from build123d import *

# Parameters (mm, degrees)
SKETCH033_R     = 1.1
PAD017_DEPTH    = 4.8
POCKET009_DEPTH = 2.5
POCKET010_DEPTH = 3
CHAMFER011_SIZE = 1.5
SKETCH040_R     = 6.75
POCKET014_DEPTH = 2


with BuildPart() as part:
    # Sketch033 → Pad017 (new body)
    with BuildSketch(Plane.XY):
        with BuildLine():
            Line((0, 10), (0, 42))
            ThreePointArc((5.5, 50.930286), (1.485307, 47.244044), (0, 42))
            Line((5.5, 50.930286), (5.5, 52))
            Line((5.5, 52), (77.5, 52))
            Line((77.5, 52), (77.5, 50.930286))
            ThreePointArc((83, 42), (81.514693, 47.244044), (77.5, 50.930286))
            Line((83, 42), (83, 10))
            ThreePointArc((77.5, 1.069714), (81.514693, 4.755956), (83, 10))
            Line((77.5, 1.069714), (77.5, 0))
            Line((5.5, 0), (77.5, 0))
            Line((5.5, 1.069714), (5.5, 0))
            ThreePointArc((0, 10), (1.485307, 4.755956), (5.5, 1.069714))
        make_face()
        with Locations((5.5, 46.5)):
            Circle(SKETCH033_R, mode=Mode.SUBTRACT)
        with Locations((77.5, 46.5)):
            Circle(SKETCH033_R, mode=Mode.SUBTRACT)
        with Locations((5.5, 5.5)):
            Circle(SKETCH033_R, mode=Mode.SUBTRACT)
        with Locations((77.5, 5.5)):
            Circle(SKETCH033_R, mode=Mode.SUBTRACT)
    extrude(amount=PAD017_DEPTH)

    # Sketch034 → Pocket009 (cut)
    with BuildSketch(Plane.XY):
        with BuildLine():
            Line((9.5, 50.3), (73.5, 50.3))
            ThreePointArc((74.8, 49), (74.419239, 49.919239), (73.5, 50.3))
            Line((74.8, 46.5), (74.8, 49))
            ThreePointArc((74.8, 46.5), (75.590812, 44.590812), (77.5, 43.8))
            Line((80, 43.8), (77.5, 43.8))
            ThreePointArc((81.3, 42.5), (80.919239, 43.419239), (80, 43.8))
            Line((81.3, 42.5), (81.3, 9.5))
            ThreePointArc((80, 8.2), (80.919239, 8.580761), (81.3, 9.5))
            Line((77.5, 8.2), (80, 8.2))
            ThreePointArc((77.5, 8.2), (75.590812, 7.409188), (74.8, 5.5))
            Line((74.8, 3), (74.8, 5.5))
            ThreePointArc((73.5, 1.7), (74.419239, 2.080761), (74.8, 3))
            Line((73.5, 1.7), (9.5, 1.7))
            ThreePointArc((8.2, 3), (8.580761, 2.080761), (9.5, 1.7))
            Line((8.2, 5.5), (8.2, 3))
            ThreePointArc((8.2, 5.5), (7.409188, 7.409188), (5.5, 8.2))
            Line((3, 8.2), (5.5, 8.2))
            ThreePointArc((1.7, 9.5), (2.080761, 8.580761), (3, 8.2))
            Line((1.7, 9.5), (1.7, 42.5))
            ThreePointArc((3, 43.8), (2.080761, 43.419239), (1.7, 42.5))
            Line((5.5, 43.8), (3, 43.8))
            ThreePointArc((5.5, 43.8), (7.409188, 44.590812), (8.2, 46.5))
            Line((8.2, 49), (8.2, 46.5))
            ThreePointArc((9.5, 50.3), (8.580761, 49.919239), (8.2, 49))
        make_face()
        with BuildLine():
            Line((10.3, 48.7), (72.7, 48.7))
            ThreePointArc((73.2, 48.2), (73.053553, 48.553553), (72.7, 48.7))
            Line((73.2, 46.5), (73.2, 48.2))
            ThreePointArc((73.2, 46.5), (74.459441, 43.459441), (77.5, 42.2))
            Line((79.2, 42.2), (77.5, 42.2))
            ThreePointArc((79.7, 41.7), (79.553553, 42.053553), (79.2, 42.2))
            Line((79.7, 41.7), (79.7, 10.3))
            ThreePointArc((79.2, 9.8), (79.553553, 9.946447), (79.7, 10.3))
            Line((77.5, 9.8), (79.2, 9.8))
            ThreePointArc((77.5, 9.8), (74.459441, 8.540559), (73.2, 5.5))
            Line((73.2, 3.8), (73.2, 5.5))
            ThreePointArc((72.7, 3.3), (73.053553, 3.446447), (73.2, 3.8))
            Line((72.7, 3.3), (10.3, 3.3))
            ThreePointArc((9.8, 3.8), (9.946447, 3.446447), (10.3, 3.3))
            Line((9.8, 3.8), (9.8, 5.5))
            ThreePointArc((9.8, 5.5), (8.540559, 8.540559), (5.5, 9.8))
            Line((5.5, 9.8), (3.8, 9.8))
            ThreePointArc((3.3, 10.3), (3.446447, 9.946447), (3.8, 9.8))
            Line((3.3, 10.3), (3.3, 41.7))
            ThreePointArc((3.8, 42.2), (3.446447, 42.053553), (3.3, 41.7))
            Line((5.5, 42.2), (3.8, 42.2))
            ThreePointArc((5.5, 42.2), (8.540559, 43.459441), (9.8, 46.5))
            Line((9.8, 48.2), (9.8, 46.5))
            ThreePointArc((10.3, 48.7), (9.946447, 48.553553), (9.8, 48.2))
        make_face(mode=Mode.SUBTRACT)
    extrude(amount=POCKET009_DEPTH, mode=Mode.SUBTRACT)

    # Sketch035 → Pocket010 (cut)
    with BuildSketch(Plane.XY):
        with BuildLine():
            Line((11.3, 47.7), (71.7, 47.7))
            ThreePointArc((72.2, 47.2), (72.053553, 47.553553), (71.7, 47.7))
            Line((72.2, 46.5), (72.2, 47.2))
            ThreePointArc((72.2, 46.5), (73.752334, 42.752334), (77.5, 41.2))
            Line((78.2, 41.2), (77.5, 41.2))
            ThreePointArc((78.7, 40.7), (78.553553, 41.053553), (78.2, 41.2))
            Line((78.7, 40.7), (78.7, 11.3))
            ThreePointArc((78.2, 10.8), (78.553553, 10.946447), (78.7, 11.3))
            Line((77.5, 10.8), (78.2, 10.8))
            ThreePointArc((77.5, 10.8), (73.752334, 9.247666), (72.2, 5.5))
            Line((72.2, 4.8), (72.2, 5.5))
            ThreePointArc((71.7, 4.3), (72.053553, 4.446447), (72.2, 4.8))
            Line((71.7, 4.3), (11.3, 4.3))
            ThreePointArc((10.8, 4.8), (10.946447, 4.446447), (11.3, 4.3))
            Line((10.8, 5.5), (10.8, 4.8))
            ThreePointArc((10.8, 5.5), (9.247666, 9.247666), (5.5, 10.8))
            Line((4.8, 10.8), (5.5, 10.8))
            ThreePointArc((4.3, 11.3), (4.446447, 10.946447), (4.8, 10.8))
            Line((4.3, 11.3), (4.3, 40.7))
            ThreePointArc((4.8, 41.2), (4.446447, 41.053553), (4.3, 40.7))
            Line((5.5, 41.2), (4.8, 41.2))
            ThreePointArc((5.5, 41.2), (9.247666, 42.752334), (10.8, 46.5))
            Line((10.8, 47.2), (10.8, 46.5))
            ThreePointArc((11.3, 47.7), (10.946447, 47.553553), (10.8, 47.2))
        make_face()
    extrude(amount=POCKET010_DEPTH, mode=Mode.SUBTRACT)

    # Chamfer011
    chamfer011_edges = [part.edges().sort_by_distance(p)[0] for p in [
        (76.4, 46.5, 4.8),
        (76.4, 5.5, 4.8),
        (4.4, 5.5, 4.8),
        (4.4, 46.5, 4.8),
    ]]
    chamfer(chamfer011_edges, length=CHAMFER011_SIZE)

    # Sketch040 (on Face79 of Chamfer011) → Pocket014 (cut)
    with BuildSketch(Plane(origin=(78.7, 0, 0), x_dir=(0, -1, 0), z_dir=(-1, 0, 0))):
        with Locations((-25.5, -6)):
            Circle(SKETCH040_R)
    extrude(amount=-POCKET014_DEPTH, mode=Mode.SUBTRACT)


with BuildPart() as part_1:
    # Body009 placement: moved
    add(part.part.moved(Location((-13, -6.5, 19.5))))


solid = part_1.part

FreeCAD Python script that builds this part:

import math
import FreeCAD as App
import Part
import Sketcher
from FreeCAD import Vector


def edges_at(feature, points):
    """Names of the edges that pass closest to the given points."""
    edges = feature.Shape.Edges
    near = lambda p: min(range(len(edges)), key=lambda i: edges[i].distToShape(Part.Vertex(*p))[0])
    return sorted({f"Edge{near(p) + 1}" for p in points})

doc = App.newDocument("Part")
body = doc.addObject("PartDesign::Body", "Body")

# Sketch on XY plane
sketch1 = body.newObject("Sketcher::SketchObject", "Sketch")
sketch1.AttachmentSupport = (doc.getObject("XY_Plane"), [""])
sketch1.MapMode = "FlatFace"
sketch1.addGeometry([
    Part.LineSegment(Vector(0, 42, 0), Vector(0, 10, 0)),  # 0
    Part.ArcOfCircle(Part.Circle(Vector(10.000003, 10.000001, 0), Vector(0, 0, 1), 10.000003), math.radians(-179.999992), math.radians(-116.743694)),  # 1
    Part.LineSegment(Vector(5.5, 1.069714, 0), Vector(5.5, 0, 0)),  # 2
    Part.LineSegment(Vector(5.5, 0, 0), Vector(77.5, 0, 0)),  # 3
    Part.LineSegment(Vector(77.5, 0, 0), Vector(77.5, 1.069714, 0)),  # 4
    Part.ArcOfCircle(Part.Circle(Vector(72.999997, 10.000001, 0), Vector(0, 0, 1), 10.000003), math.radians(-63.256306), math.radians(-0.000008)),  # 5
    Part.LineSegment(Vector(83, 10, 0), Vector(83, 42, 0)),  # 6
    Part.ArcOfCircle(Part.Circle(Vector(72.999997, 41.999999, 0), Vector(0, 0, 1), 10.000003), math.radians(0.000008), math.radians(63.256306)),  # 7
    Part.LineSegment(Vector(77.5, 50.930286, 0), Vector(77.5, 52, 0)),  # 8
    Part.LineSegment(Vector(77.5, 52, 0), Vector(5.5, 52, 0)),  # 9
    Part.LineSegment(Vector(5.5, 52, 0), Vector(5.5, 50.930286, 0)),  # 10
    Part.ArcOfCircle(Part.Circle(Vector(10.000003, 41.999999, 0), Vector(0, 0, 1), 10.000003), math.radians(116.743694), math.radians(179.999992)),  # 11
    Part.Circle(Vector(77.5, 5.5, 0), Vector(0, 0, 1), 1.1),  # 12
    Part.Circle(Vector(5.5, 5.5, 0), Vector(0, 0, 1), 1.1),  # 13
    Part.Circle(Vector(77.5, 46.5, 0), Vector(0, 0, 1), 1.1),  # 14
    Part.Circle(Vector(5.5, 46.5, 0), Vector(0, 0, 1), 1.1),  # 15
], False)
sketch1.addConstraint([
    Sketcher.Constraint("Tangent", 0, 2, 1, 1),
    Sketcher.Constraint("Coincident", 1, 2, 2, 1),
    Sketcher.Constraint("Coincident", 2, 2, 3, 1),
    Sketcher.Constraint("Coincident", 3, 2, 4, 1),
    Sketcher.Constraint("Coincident", 4, 2, 5, 1),
    Sketcher.Constraint("Tangent", 5, 2, 6, 1),
    Sketcher.Constraint("Tangent", 6, 2, 7, 1),
    Sketcher.Constraint("Coincident", 7, 2, 8, 1),
    Sketcher.Constraint("Coincident", 8, 2, 9, 1),
    Sketcher.Constraint("Coincident", 9, 2, 10, 1),
    Sketcher.Constraint("Coincident", 10, 2, 11, 1),
    Sketcher.Constraint("Tangent", 11, 2, 0, 1),
    Sketcher.Constraint("Vertical", 0),
    Sketcher.Constraint("Vertical", 2),
    Sketcher.Constraint("Horizontal", 3),
    Sketcher.Constraint("Vertical", 4),
    Sketcher.Constraint("Vertical", 6),
    Sketcher.Constraint("Vertical", 8),
    Sketcher.Constraint("Horizontal", 9),
    Sketcher.Constraint("Vertical", 10),
    Sketcher.Constraint("Equal", 1, 5),
    Sketcher.Constraint("Equal", 5, 7),
    Sketcher.Constraint("Equal", 7, 11),
    Sketcher.Constraint("Equal", 12, 13),
    Sketcher.Constraint("Equal", 13, 14),
    Sketcher.Constraint("Equal", 14, 15),
    Sketcher.Constraint("PointOnObject", 0, 2, -2),
    Sketcher.Constraint("PointOnObject", 2, 2, -1),
    Sketcher.Constraint("Horizontal", 1, 3, 5, 3),
    Sketcher.Constraint("Horizontal", 7, 3, 11, 3),
    Sketcher.Constraint("Horizontal", 12, 3, 13, 3),
    Sketcher.Constraint("Horizontal", 14, 3, 15, 3),
    Sketcher.Constraint("Horizontal", 1, 2, 4, 2),
    Sketcher.Constraint("Horizontal", 7, 2, 10, 2),
    Sketcher.Constraint("Vertical", 12, 3, 14, 3),
    Sketcher.Constraint("Vertical", 13, 3, 15, 3),
    Sketcher.Constraint("Vertical", 15, 3, 1, 2),
    Sketcher.Constraint("Vertical", 14, 3, 3, 2),
    Sketcher.Constraint("Vertical", 4, 2, 7, 2),
    Sketcher.Constraint("Equal", 4, 8),
    Sketcher.Constraint("Diameter", 12, 2.2),
    Sketcher.Constraint("DistanceX", 3, 1, 3, 2, 72.0),
    Sketcher.Constraint("DistanceY", 0, 2, 0, 1, 32.0),
    Sketcher.Constraint("DistanceY", -1, 1, 1, 3, 10.000001),
    Sketcher.Constraint("DistanceX", -1, 1, 5, 2, 83.0),
    Sketcher.Constraint("DistanceY", 12, 3, 14, 3, 41.0),
    Sketcher.Constraint("DistanceY", -1, 1, 12, 3, 5.5),
    Sketcher.Constraint("Radius", 1, 10.000003),
])
pad1 = body.newObject("PartDesign::Pad", "Pad")
pad1.Profile = sketch1
pad1.Length = 4.8

# Sketch on XY plane
sketch2 = body.newObject("Sketcher::SketchObject", "Sketch001")
sketch2.AttachmentSupport = (doc.getObject("XY_Plane"), [""])
sketch2.MapMode = "FlatFace"
sketch2.addGeometry([
    Part.LineSegment(Vector(73.5, 50.3, 0), Vector(9.5, 50.3, 0)),  # 0
    Part.ArcOfCircle(Part.Circle(Vector(9.499999, 49.000001, 0), Vector(0, 0, 1), 1.299999), math.radians(89.999972), math.radians(180.000028)),  # 1
    Part.LineSegment(Vector(8.2, 49, 0), Vector(8.2, 46.5, 0)),  # 2
    Part.ArcOfCircle(Part.Circle(Vector(5.499999, 46.500001, 0), Vector(0, 0, 1), 2.700001), math.radians(-89.999978), math.radians(-0.000022)),  # 3
    Part.LineSegment(Vector(5.5, 43.8, 0), Vector(3, 43.8, 0)),  # 4
    Part.ArcOfCircle(Part.Circle(Vector(2.999999, 42.500001, 0), Vector(0, 0, 1), 1.299999), math.radians(89.999972), math.radians(180.000028)),  # 5
    Part.LineSegment(Vector(1.7, 42.5, 0), Vector(1.7, 9.5, 0)),  # 6
    Part.ArcOfCircle(Part.Circle(Vector(2.999999, 9.499999, 0), Vector(0, 0, 1), 1.299999), math.radians(179.999972), math.radians(270.000028)),  # 7
    Part.LineSegment(Vector(3, 8.2, 0), Vector(5.5, 8.2, 0)),  # 8
    Part.ArcOfCircle(Part.Circle(Vector(5.499999, 5.499999, 0), Vector(0, 0, 1), 2.700001), math.radians(0.000022), math.radians(89.999978)),  # 9
    Part.LineSegment(Vector(8.2, 5.5, 0), Vector(8.2, 3, 0)),  # 10
    Part.ArcOfCircle(Part.Circle(Vector(9.499999, 2.999999, 0), Vector(0, 0, 1), 1.299999), math.radians(179.999972), math.radians(270.000028)),  # 11
    Part.LineSegment(Vector(9.5, 1.7, 0), Vector(73.5, 1.7, 0)),  # 12
    Part.ArcOfCircle(Part.Circle(Vector(73.500001, 2.999999, 0), Vector(0, 0, 1), 1.299999), math.radians(-90.000028), math.radians(0.000028)),  # 13
    Part.LineSegment(Vector(74.8, 3, 0), Vector(74.8, 5.5, 0)),  # 14
    Part.ArcOfCircle(Part.Circle(Vector(77.500001, 5.499999, 0), Vector(0, 0, 1), 2.700001), math.radians(90.000022), math.radians(179.999978)),  # 15
    Part.LineSegment(Vector(77.5, 8.2, 0), Vector(80, 8.2, 0)),  # 16
    Part.ArcOfCircle(Part.Circle(Vector(80.000001, 9.499999, 0), Vector(0, 0, 1), 1.299999), math.radians(-90.000028), math.radians(0.000028)),  # 17
    Part.LineSegment(Vector(81.3, 9.5, 0), Vector(81.3, 42.5, 0)),  # 18
    Part.ArcOfCircle(Part.Circle(Vector(80.000001, 42.500001, 0), Vector(0, 0, 1), 1.299999), math.radians(-0.000028), math.radians(90.000028)),  # 19
    Part.LineSegment(Vector(80, 43.8, 0), Vector(77.5, 43.8, 0)),  # 20
    Part.ArcOfCircle(Part.Circle(Vector(77.500001, 46.500001, 0), Vector(0, 0, 1), 2.700001), math.radians(-179.999978), math.radians(-90.000022)),  # 21
    Part.LineSegment(Vector(74.8, 46.5, 0), Vector(74.8, 49, 0)),  # 22
    Part.ArcOfCircle(Part.Circle(Vector(73.500001, 49.000001, 0), Vector(0, 0, 1), 1.299999), math.radians(-0.000028), math.radians(90.000028)),  # 23
    Part.LineSegment(Vector(10.3, 48.7, 0), Vector(72.7, 48.7, 0)),  # 24
    Part.ArcOfCircle(Part.Circle(Vector(72.699999, 48.199999, 0), Vector(0, 0, 1), 0.500001), math.radians(0.000153), math.radians(89.999847)),  # 25
    Part.LineSegment(Vector(73.2, 48.2, 0), Vector(73.2, 46.5, 0)),  # 26
    Part.ArcOfCircle(Part.Circle(Vector(77.500001, 46.500001, 0), Vector(0, 0, 1), 4.300001), math.radians(-179.999993), math.radians(-90.000007)),  # 27
    Part.LineSegment(Vector(77.5, 42.2, 0), Vector(79.2, 42.2, 0)),  # 28
    Part.ArcOfCircle(Part.Circle(Vector(79.199999, 41.699999, 0), Vector(0, 0, 1), 0.500001), math.radians(0.000153), math.radians(89.999847)),  # 29
    Part.LineSegment(Vector(79.7, 41.7, 0), Vector(79.7, 10.3, 0)),  # 30
    Part.ArcOfCircle(Part.Circle(Vector(79.199999, 10.300001, 0), Vector(0, 0, 1), 0.500001), math.radians(-89.999847), math.radians(-0.000153)),  # 31
    Part.LineSegment(Vector(79.2, 9.8, 0), Vector(77.5, 9.8, 0)),  # 32
    Part.ArcOfCircle(Part.Circle(Vector(77.500001, 5.499999, 0), Vector(0, 0, 1), 4.300001), math.radians(90.000007), math.radians(179.999993)),  # 33
    Part.LineSegment(Vector(73.2, 5.5, 0), Vector(73.2, 3.8, 0)),  # 34
    Part.ArcOfCircle(Part.Circle(Vector(72.699999, 3.800001, 0), Vector(0, 0, 1), 0.500001), math.radians(-89.999847), math.radians(-0.000153)),  # 35
    Part.LineSegment(Vector(72.7, 3.3, 0), Vector(10.3, 3.3, 0)),  # 36
    Part.ArcOfCircle(Part.Circle(Vector(10.300001, 3.800001, 0), Vector(0, 0, 1), 0.500001), math.radians(-179.999847), math.radians(-90.000153)),  # 37
    Part.LineSegment(Vector(9.8, 3.8, 0), Vector(9.8, 5.5, 0)),  # 38
    Part.ArcOfCircle(Part.Circle(Vector(5.499999, 5.499999, 0), Vector(0, 0, 1), 4.300001), math.radians(0.000007), math.radians(89.999993)),  # 39
    Part.LineSegment(Vector(5.5, 9.8, 0), Vector(3.8, 9.8, 0)),  # 40
    Part.ArcOfCircle(Part.Circle(Vector(3.800001, 10.300001, 0), Vector(0, 0, 1), 0.500001), math.radians(-179.999847), math.radians(-90.000153)),  # 41
    Part.LineSegment(Vector(3.3, 10.3, 0), Vector(3.3, 41.7, 0)),  # 42
    Part.ArcOfCircle(Part.Circle(Vector(3.800001, 41.699999, 0), Vector(0, 0, 1), 0.500001), math.radians(90.000153), math.radians(179.999847)),  # 43
    Part.LineSegment(Vector(3.8, 42.2, 0), Vector(5.5, 42.2, 0)),  # 44
    Part.ArcOfCircle(Part.Circle(Vector(5.499999, 46.500001, 0), Vector(0, 0, 1), 4.300001), math.radians(-89.999993), math.radians(-0.000007)),  # 45
    Part.LineSegment(Vector(9.8, 46.5, 0), Vector(9.8, 48.2, 0)),  # 46
    Part.ArcOfCircle(Part.Circle(Vector(10.300001, 48.199999, 0), Vector(0, 0, 1), 0.500001), math.radians(90.000153), math.radians(179.999847)),  # 47
], False)
sketch2.addConstraint([
    Sketcher.Constraint("Tangent", 0, 2, 1, 1),
    Sketcher.Constraint("Tangent", 1, 2, 2, 1),
    Sketcher.Constraint("Tangent", 2, 2, 3, 2),
    Sketcher.Constraint("Tangent", 3, 1, 4, 1),
    Sketcher.Constraint("Tangent", 4, 2, 5, 1),
    Sketcher.Constraint("Tangent", 5, 2, 6, 1),
    Sketcher.Constraint("Tangent", 6, 2, 7, 1),
    Sketcher.Constraint("Tangent", 7, 2, 8, 1),
    Sketcher.Constraint("Tangent", 8, 2, 9, 2),
    Sketcher.Constraint("Tangent", 9, 1, 10, 1),
    Sketcher.Constraint("Tangent", 10, 2, 11, 1),
    Sketcher.Constraint("Tangent", 11, 2, 12, 1),
    Sketcher.Constraint("Tangent", 12, 2, 13, 1),
    Sketcher.Constraint("Tangent", 13, 2, 14, 1),
    Sketcher.Constraint("Tangent", 14, 2, 15, 2),
    Sketcher.Constraint("Tangent", 15, 1, 16, 1),
    Sketcher.Constraint("Tangent", 16, 2, 17, 1),
    Sketcher.Constraint("Tangent", 17, 2, 18, 1),
    Sketcher.Constraint("Tangent", 18, 2, 19, 1),
    Sketcher.Constraint("Tangent", 19, 2, 20, 1),
    Sketcher.Constraint("Tangent", 20, 2, 21, 2),
    Sketcher.Constraint("Tangent", 21, 1, 22, 1),
    Sketcher.Constraint("Tangent", 22, 2, 23, 1),
    Sketcher.Constraint("Tangent", 23, 2, 0, 1),
    Sketcher.Constraint("Coincident", 24, 2, 25, 2),
    Sketcher.Constraint("Coincident", 25, 1, 26, 1),
    Sketcher.Constraint("Tangent", 26, 2, 27, 1),
    Sketcher.Constraint("Tangent", 27, 2, 28, 1),
    Sketcher.Constraint("Coincident", 28, 2, 29, 2),
    Sketcher.Constraint("Coincident", 29, 1, 30, 1),
    Sketcher.Constraint("Coincident", 30, 2, 31, 2),
    Sketcher.Constraint("Coincident", 31, 1, 32, 1),
    Sketcher.Constraint("Tangent", 32, 2, 33, 1),
    Sketcher.Constraint("Tangent", 33, 2, 34, 1),
    Sketcher.Constraint("Coincident", 34, 2, 35, 2),
    Sketcher.Constraint("Coincident", 35, 1, 36, 1),
    Sketcher.Constraint("Coincident", 36, 2, 37, 2),
    Sketcher.Constraint("Coincident", 37, 1, 38, 1),
    Sketcher.Constraint("Tangent", 38, 2, 39, 1),
    Sketcher.Constraint("Tangent", 39, 2, 40, 1),
    Sketcher.Constraint("Coincident", 40, 2, 41, 2),
    Sketcher.Constraint("Coincident", 41, 1, 42, 1),
    Sketcher.Constraint("Coincident", 42, 2, 43, 2),
    Sketcher.Constraint("Coincident", 43, 1, 44, 1),
    Sketcher.Constraint("Tangent", 44, 2, 45, 1),
    Sketcher.Constraint("Tangent", 45, 2, 46, 1),
    Sketcher.Constraint("Coincident", 46, 2, 47, 2),
    Sketcher.Constraint("Coincident", 47, 1, 24, 1),
    Sketcher.Constraint("Horizontal", 0),
    Sketcher.Constraint("Vertical", 2),
    Sketcher.Constraint("Horizontal", 4),
    Sketcher.Constraint("Vertical", 6),
    Sketcher.Constraint("Horizontal", 8),
    Sketcher.Constraint("Vertical", 10),
    Sketcher.Constraint("Horizontal", 12),
    Sketcher.Constraint("Vertical", 14),
    Sketcher.Constraint("Horizontal", 16),
    Sketcher.Constraint("Vertical", 18),
    Sketcher.Constraint("Horizontal", 20),
    Sketcher.Constraint("Vertical", 22),
    Sketcher.Constraint("Horizontal", 24),
    Sketcher.Constraint("Vertical", 26),
    Sketcher.Constraint("Horizontal", 28),
    Sketcher.Constraint("Vertical", 30),
    Sketcher.Constraint("Horizontal", 32),
    Sketcher.Constraint("Vertical", 34),
    Sketcher.Constraint("Horizontal", 36),
    Sketcher.Constraint("Vertical", 38),
    Sketcher.Constraint("Horizontal", 40),
    Sketcher.Constraint("Vertical", 42),
    Sketcher.Constraint("Horizontal", 44),
    Sketcher.Constraint("Vertical", 46),
    Sketcher.Constraint("Coincident", 27, 3, 21, 3),
    Sketcher.Constraint("Coincident", 33, 3, 15, 3),
    Sketcher.Constraint("Coincident", 39, 3, 9, 3),
    Sketcher.Constraint("Coincident", 45, 3, 3, 3),
    Sketcher.Constraint("Equal", 1, 5),
    Sketcher.Constraint("Equal", 5, 7),
    Sketcher.Constraint("Equal", 3, 9),
    Sketcher.Constraint("Equal", 7, 11),
    Sketcher.Constraint("Equal", 11, 13),
    Sketcher.Constraint("Equal", 9, 15),
    Sketcher.Constraint("Equal", 13, 17),
    Sketcher.Constraint("Equal", 17, 19),
    Sketcher.Constraint("Equal", 15, 21),
    Sketcher.Constraint("Equal", 19, 23),
    Sketcher.Constraint("Equal", 25, 29),
    Sketcher.Constraint("Equal", 29, 31),
    Sketcher.Constraint("Equal", 27, 33),
    Sketcher.Constraint("Equal", 31, 35),
    Sketcher.Constraint("Equal", 35, 37),
    Sketcher.Constraint("Equal", 33, 39),
    Sketcher.Constraint("Equal", 37, 41),
    Sketcher.Constraint("Equal", 41, 43),
    Sketcher.Constraint("Equal", 39, 45),
    Sketcher.Constraint("Equal", 43, 47),
    Sketcher.Constraint("Horizontal", 9, 3, 15, 3),
    Sketcher.Constraint("Horizontal", 5, 3, 19, 3),
    Sketcher.Constraint("Horizontal", 47, 3, 25, 1),
    Sketcher.Constraint("Horizontal", 43, 3, 29, 1),
    Sketcher.Constraint("Horizontal", 41, 3, 30, 2),
    Sketcher.Constraint("Horizontal", 37, 3, 34, 2),
    Sketcher.Constraint("Horizontal", 34, 2, 37, 1),
    Sketcher.Constraint("Horizontal", 30, 2, 41, 1),
    Sketcher.Constraint("Horizontal", 29, 1, 42, 2),
    Sketcher.Constraint("Horizontal", 25, 1, 46, 2),
    Sketcher.Constraint("Vertical", 3, 3, 9, 3),
    Sketcher.Constraint("Vertical", 15, 3, 21, 3),
    Sketcher.Constraint("Vertical", 35, 3, 24, 2),
    Sketcher.Constraint("Vertical", 31, 3, 28, 2),
    Sketcher.Constraint("Vertical", 28, 2, 31, 1),
    Sketcher.Constraint("Vertical", 24, 2, 35, 1),
    Sketcher.Constraint("Vertical", 47, 3, 36, 2),
    Sketcher.Constraint("Vertical", 43, 3, 40, 2),
    Sketcher.Constraint("Vertical", 40, 2, 43, 1),
    Sketcher.Constraint("Vertical", 36, 2, 47, 1),
    Sketcher.Constraint("Equal", 8, 16),
    Sketcher.Constraint("Equal", 32, 40),
    Sketcher.Constraint("Equal", 20, 2),
    Sketcher.Constraint("Equal", 2, 10),
    Sketcher.Constraint("Equal", 44, 26),
    Sketcher.Constraint("Equal", 26, 34),
    Sketcher.Constraint("Radius", 1, 1.299999),
    Sketcher.Constraint("Radius", 3, 2.700001),
    Sketcher.Constraint("Radius", 25, 0.500001),
    Sketcher.Constraint("Radius", 27, 4.300001),
    Sketcher.Constraint("DistanceX", 0, 2, 0, 1, 64.0),
    Sketcher.Constraint("DistanceY", 6, 2, 6, 1, 33.0),
    Sketcher.Constraint("DistanceX", 4, 2, 4, 1, 2.5),
    Sketcher.Constraint("DistanceX", 28, 1, 28, 2, 1.7),
    Sketcher.Constraint("DistanceY", -1, 1, 1, 3, 49.000001),
    Sketcher.Constraint("DistanceX", -1, 1, 5, 3, 2.999999),
])
pocket1 = body.newObject("PartDesign::Pocket", "Pocket")
pocket1.Profile = sketch2
pocket1.Length = 2.5
pocket1.Reversed = True

# Sketch on XY plane
sketch3 = body.newObject("Sketcher::SketchObject", "Sketch002")
sketch3.AttachmentSupport = (doc.getObject("XY_Plane"), [""])
sketch3.MapMode = "FlatFace"
sketch3.addGeometry([
    Part.LineSegment(Vector(71.7, 47.7, 0), Vector(11.3, 47.7, 0)),  # 0
    Part.ArcOfCircle(Part.Circle(Vector(11.300001, 47.199999, 0), Vector(0, 0, 1), 0.500001), math.radians(90.000153), math.radians(179.999847)),  # 1
    Part.LineSegment(Vector(10.8, 47.2, 0), Vector(10.8, 46.5, 0)),  # 2
    Part.ArcOfCircle(Part.Circle(Vector(5.5, 46.5, 0), Vector(0, 0, 1), 5.3), math.radians(-90.000002), math.radians(0.000002)),  # 3
    Part.LineSegment(Vector(5.5, 41.2, 0), Vector(4.8, 41.2, 0)),  # 4
    Part.ArcOfCircle(Part.Circle(Vector(4.800001, 40.699999, 0), Vector(0, 0, 1), 0.500001), math.radians(90.000153), math.radians(179.999847)),  # 5
    Part.LineSegment(Vector(4.3, 40.7, 0), Vector(4.3, 11.3, 0)),  # 6
    Part.ArcOfCircle(Part.Circle(Vector(4.800001, 11.300001, 0), Vector(0, 0, 1), 0.500001), math.radians(-179.999847), math.radians(-90.000153)),  # 7
    Part.LineSegment(Vector(4.8, 10.8, 0), Vector(5.5, 10.8, 0)),  # 8
    Part.ArcOfCircle(Part.Circle(Vector(5.5, 5.5, 0), Vector(0, 0, 1), 5.3), math.radians(-0.000002), math.radians(90.000002)),  # 9
    Part.LineSegment(Vector(10.8, 5.5, 0), Vector(10.8, 4.8, 0)),  # 10
    Part.ArcOfCircle(Part.Circle(Vector(11.300001, 4.800001, 0), Vector(0, 0, 1), 0.500001), math.radians(-179.999847), math.radians(-90.000153)),  # 11
    Part.LineSegment(Vector(11.3, 4.3, 0), Vector(71.7, 4.3, 0)),  # 12
    Part.ArcOfCircle(Part.Circle(Vector(71.699999, 4.800001, 0), Vector(0, 0, 1), 0.500001), math.radians(-89.999847), math.radians(-0.000153)),  # 13
    Part.LineSegment(Vector(72.2, 4.8, 0), Vector(72.2, 5.5, 0)),  # 14
    Part.ArcOfCircle(Part.Circle(Vector(77.5, 5.5, 0), Vector(0, 0, 1), 5.3), math.radians(89.999998), math.radians(180.000002)),  # 15
    Part.LineSegment(Vector(77.5, 10.8, 0), Vector(78.2, 10.8, 0)),  # 16
    Part.ArcOfCircle(Part.Circle(Vector(78.199999, 11.300001, 0), Vector(0, 0, 1), 0.500001), math.radians(-89.999847), math.radians(-0.000153)),  # 17
    Part.LineSegment(Vector(78.7, 11.3, 0), Vector(78.7, 40.7, 0)),  # 18
    Part.ArcOfCircle(Part.Circle(Vector(78.199999, 40.699999, 0), Vector(0, 0, 1), 0.500001), math.radians(0.000153), math.radians(89.999847)),  # 19
    Part.LineSegment(Vector(78.2, 41.2, 0), Vector(77.5, 41.2, 0)),  # 20
    Part.ArcOfCircle(Part.Circle(Vector(77.5, 46.5, 0), Vector(0, 0, 1), 5.3), math.radians(179.999998), math.radians(270.000002)),  # 21
    Part.LineSegment(Vector(72.2, 46.5, 0), Vector(72.2, 47.2, 0)),  # 22
    Part.ArcOfCircle(Part.Circle(Vector(71.699999, 47.199999, 0), Vector(0, 0, 1), 0.500001), math.radians(0.000153), math.radians(89.999847)),  # 23
], False)
sketch3.addConstraint([
    Sketcher.Constraint("Coincident", 0, 2, 1, 1),
    Sketcher.Constraint("Coincident", 1, 2, 2, 1),
    Sketcher.Constraint("Tangent", 2, 2, 3, 2),
    Sketcher.Constraint("Tangent", 3, 1, 4, 1),
    Sketcher.Constraint("Coincident", 4, 2, 5, 1),
    Sketcher.Constraint("Coincident", 5, 2, 6, 1),
    Sketcher.Constraint("Coincident", 6, 2, 7, 1),
    Sketcher.Constraint("Coincident", 7, 2, 8, 1),
    Sketcher.Constraint("Tangent", 8, 2, 9, 2),
    Sketcher.Constraint("Tangent", 9, 1, 10, 1),
    Sketcher.Constraint("Coincident", 10, 2, 11, 1),
    Sketcher.Constraint("Coincident", 11, 2, 12, 1),
    Sketcher.Constraint("Coincident", 12, 2, 13, 1),
    Sketcher.Constraint("Coincident", 13, 2, 14, 1),
    Sketcher.Constraint("Tangent", 14, 2, 15, 2),
    Sketcher.Constraint("Tangent", 15, 1, 16, 1),
    Sketcher.Constraint("Coincident", 16, 2, 17, 1),
    Sketcher.Constraint("Coincident", 17, 2, 18, 1),
    Sketcher.Constraint("Coincident", 18, 2, 19, 1),
    Sketcher.Constraint("Coincident", 19, 2, 20, 1),
    Sketcher.Constraint("Tangent", 20, 2, 21, 2),
    Sketcher.Constraint("Tangent", 21, 1, 22, 1),
    Sketcher.Constraint("Coincident", 22, 2, 23, 1),
    Sketcher.Constraint("Coincident", 23, 2, 0, 1),
    Sketcher.Constraint("Horizontal", 0),
    Sketcher.Constraint("Vertical", 2),
    Sketcher.Constraint("Horizontal", 4),
    Sketcher.Constraint("Vertical", 6),
    Sketcher.Constraint("Horizontal", 8),
    Sketcher.Constraint("Vertical", 10),
    Sketcher.Constraint("Horizontal", 12),
    Sketcher.Constraint("Vertical", 14),
    Sketcher.Constraint("Horizontal", 16),
    Sketcher.Constraint("Vertical", 18),
    Sketcher.Constraint("Horizontal", 20),
    Sketcher.Constraint("Vertical", 22),
    Sketcher.Constraint("Equal", 1, 5),
    Sketcher.Constraint("Equal", 5, 7),
    Sketcher.Constraint("Equal", 3, 9),
    Sketcher.Constraint("Equal", 7, 11),
    Sketcher.Constraint("Equal", 11, 13),
    Sketcher.Constraint("Equal", 9, 15),
    Sketcher.Constraint("Equal", 13, 17),
    Sketcher.Constraint("Equal", 17, 19),
    Sketcher.Constraint("Equal", 15, 21),
    Sketcher.Constraint("Equal", 19, 23),
    Sketcher.Constraint("Horizontal", 9, 3, 15, 3),
    Sketcher.Constraint("Horizontal", 5, 3, 19, 3),
    Sketcher.Constraint("Horizontal", 23, 3, 1, 2),
    Sketcher.Constraint("Horizontal", 19, 3, 5, 2),
    Sketcher.Constraint("Horizontal", 17, 3, 6, 2),
    Sketcher.Constraint("Horizontal", 13, 3, 10, 2),
    Sketcher.Constraint("Horizontal", 10, 2, 13, 2),
    Sketcher.Constraint("Horizontal", 6, 2, 17, 2),
    Sketcher.Constraint("Horizontal", 5, 2, 18, 2),
    Sketcher.Constraint("Horizontal", 1, 2, 22, 2),
    Sketcher.Constraint("Vertical", 3, 3, 9, 3),
    Sketcher.Constraint("Vertical", 15, 3, 21, 3),
    Sketcher.Constraint("Vertical", 11, 3, 0, 2),
    Sketcher.Constraint("Vertical", 7, 3, 4, 2),
    Sketcher.Constraint("Vertical", 4, 2, 7, 2),
    Sketcher.Constraint("Vertical", 0, 2, 11, 2),
    Sketcher.Constraint("Vertical", 23, 3, 12, 2),
    Sketcher.Constraint("Vertical", 19, 3, 16, 2),
    Sketcher.Constraint("Vertical", 16, 2, 19, 2),
    Sketcher.Constraint("Vertical", 12, 2, 23, 2),
    Sketcher.Constraint("Equal", 8, 16),
    Sketcher.Constraint("Equal", 20, 2),
    Sketcher.Constraint("Equal", 2, 10),
    Sketcher.Constraint("Radius", 1, 0.500001),
    Sketcher.Constraint("Radius", 3, 5.3),
    Sketcher.Constraint("DistanceX", 0, 2, 0, 1, 60.4),
    Sketcher.Constraint("DistanceX", 4, 2, 4, 1, 0.7),
    Sketcher.Constraint("DistanceY", 6, 2, 6, 1, 29.4),
    Sketcher.Constraint("DistanceX", -1, 1, 1, 3, 11.300001),
    Sketcher.Constraint("DistanceY", -1, 1, 1, 3, 47.199999),
])
pocket2 = body.newObject("PartDesign::Pocket", "Pocket001")
pocket2.Profile = sketch3
pocket2.Length = 3
pocket2.Reversed = True
doc.recompute()

chamfer = body.newObject("PartDesign::Chamfer", "Chamfer")
chamfer.Base = (pocket2, edges_at(pocket2, [
    (76.4, 46.5, 4.8),
    (76.4, 5.5, 4.8),
    (4.4, 5.5, 4.8),
    (4.4, 46.5, 4.8),
]))
chamfer.Size = 1.5

# Sketch on YZ plane
sketch4 = body.newObject("Sketcher::SketchObject", "Sketch003")
sketch4.AttachmentSupport = (doc.getObject("YZ_Plane"), [""])
sketch4.MapMode = "FlatFace"
sketch4.AttachmentOffset = App.Placement(Vector(0, 0, 78.7), App.Rotation())
sketch4.addGeometry(Part.Circle(Vector(25.5, -6, 0), Vector(0, 0, 1), 6.75), False)
sketch4.addConstraint([
    Sketcher.Constraint("Diameter", 0, 13.5),
    Sketcher.Constraint("DistanceY", 0, 3, -1, 1, 6.0),
    Sketcher.Constraint("DistanceX", -1, 1, 0, 3, 25.5),
])
pocket3 = body.newObject("PartDesign::Pocket", "Pocket002")
pocket3.Profile = sketch4
pocket3.Length = 2
pocket3.Reversed = True
body2 = doc.addObject("PartDesign::Body", "Body001")
doc.recompute()

body.Placement = App.Placement(Vector(-13, -6.5, 19.5), App.Rotation(Vector(0, 0, 1), 0))
boolean = body2.newObject("PartDesign::Boolean", "Boolean")
boolean.Type = "Fuse"
boolean.addObjects([body])

doc.recompute()
